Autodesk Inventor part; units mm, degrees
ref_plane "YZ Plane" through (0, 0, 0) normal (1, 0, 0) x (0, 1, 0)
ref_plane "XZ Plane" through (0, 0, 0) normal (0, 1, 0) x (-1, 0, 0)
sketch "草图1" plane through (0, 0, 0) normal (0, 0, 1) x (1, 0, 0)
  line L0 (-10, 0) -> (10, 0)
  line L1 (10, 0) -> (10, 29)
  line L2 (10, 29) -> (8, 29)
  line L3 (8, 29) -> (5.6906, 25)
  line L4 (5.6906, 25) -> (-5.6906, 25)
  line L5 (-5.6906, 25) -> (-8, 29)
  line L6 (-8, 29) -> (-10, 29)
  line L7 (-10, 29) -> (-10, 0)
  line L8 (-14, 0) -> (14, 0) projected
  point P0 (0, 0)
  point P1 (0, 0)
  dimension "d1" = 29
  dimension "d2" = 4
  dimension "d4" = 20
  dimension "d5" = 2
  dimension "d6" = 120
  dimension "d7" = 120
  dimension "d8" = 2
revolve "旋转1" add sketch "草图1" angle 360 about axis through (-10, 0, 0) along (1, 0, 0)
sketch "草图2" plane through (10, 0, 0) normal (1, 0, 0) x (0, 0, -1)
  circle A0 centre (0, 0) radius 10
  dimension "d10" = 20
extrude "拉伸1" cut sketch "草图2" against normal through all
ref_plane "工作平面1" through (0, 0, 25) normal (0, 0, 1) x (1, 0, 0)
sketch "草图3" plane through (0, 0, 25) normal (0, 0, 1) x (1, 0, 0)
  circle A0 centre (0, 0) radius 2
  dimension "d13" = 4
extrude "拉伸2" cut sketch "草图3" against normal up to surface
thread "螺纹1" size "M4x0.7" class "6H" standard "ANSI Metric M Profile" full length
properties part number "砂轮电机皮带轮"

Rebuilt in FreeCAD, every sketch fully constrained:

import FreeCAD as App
import Part
import Sketcher
Q = App.Units.Quantity


def add_polygon(sketch, points):
    """Adds a closed chain of lines whose ends are joined by coincident constraints."""
    first, n = sketch.GeometryCount, len(points)
    for a, b in zip(points, points[1:] + points[:1]):
        sketch.addGeometry(Part.LineSegment(App.Vector(*a, 0), App.Vector(*b, 0)), False)
    for i in range(n):
        sketch.addConstraint(Sketcher.Constraint("Coincident", first + i, 2, first + (i + 1) % n, 1))

doc = App.newDocument("Part")
body = doc.addObject("PartDesign::Body", "Body")

# Sketch on XY plane
sketch1 = body.newObject("Sketcher::SketchObject", "Sketch")
sketch1.AttachmentSupport = (doc.getObject("XY_Plane"), [""])
sketch1.MapMode = "FlatFace"
add_polygon(sketch1, [(-10, 29), (-10, 0), (10, 0), (10, 29), (8, 29), (5.6906, 25), (-5.6906, 25), (-8, 29)])  # lines 0-7
sketch1.addConstraint(Sketcher.Constraint("Vertical", 0))
sketch1.addConstraint(Sketcher.Constraint("Horizontal", 1))
sketch1.addConstraint(Sketcher.Constraint("Vertical", 2))
sketch1.addConstraint(Sketcher.Constraint("Horizontal", 3))
sketch1.addConstraint(Sketcher.Constraint("Horizontal", 5))
sketch1.addConstraint(Sketcher.Constraint("Horizontal", 7))
sketch1.addConstraint(Sketcher.Constraint("Symmetric", 0, 2, 1, 2, -1, 1))
sketch1.addConstraint(Sketcher.Constraint("Symmetric", 3, 2, 6, 2, -2))
sketch1.addConstraint(Sketcher.Constraint("Equal", 4, 6))
sketch1.addConstraint(Sketcher.Constraint("DistanceX", 1, 1, 1, 2, Q("20 mm")))
sketch1.addConstraint(Sketcher.Constraint("DistanceX", 3, 2, 3, 1, Q("2 mm")))
sketch1.addConstraint(Sketcher.Constraint("DistanceY", 0, 2, 0, 1, Q("29 mm")))
sketch1.addConstraint(Sketcher.Constraint("Angle", 4, Q("-120 deg")))
sketch1.addConstraint(Sketcher.Constraint("DistanceY", 4, 2, 3, 2, Q("4 mm")))
revolution = body.newObject("PartDesign::Revolution", "Revolution")
revolution.Profile = sketch1
revolution.ReferenceAxis = (sketch1, ["H_Axis"])
revolution.Angle = 360

# Sketch on YZ plane
sketch2 = body.newObject("Sketcher::SketchObject", "Sketch001")
sketch2.AttachmentSupport = (doc.getObject("YZ_Plane"), [""])
sketch2.MapMode = "FlatFace"
sketch2.AttachmentOffset = App.Placement(App.Vector(0, 0, 10), App.Rotation())
sketch2.addGeometry(Part.Circle(App.Vector(0, 0, 0), App.Vector(0, 0, 1), 10), False)
sketch2.addConstraint(Sketcher.Constraint("Coincident", 0, 3, -1, 1))
sketch2.addConstraint(Sketcher.Constraint("Diameter", 0, Q("20 mm")))
pocket1 = body.newObject("PartDesign::Pocket", "Pocket")
pocket1.Profile = sketch2
pocket1.Type = "ThroughAll"

# Sketch on XY plane
sketch3 = body.newObject("Sketcher::SketchObject", "Sketch002")
sketch3.AttachmentSupport = (doc.getObject("XY_Plane"), [""])
sketch3.MapMode = "FlatFace"
sketch3.AttachmentOffset = App.Placement(App.Vector(0, 0, 25), App.Rotation())
sketch3.addGeometry(Part.Circle(App.Vector(0, 0, 0), App.Vector(0, 0, 1), 2), False)
sketch3.addConstraint(Sketcher.Constraint("Coincident", 0, 3, -1, 1))
sketch3.addConstraint(Sketcher.Constraint("Diameter", 0, Q("4 mm")))
pocket2 = body.newObject("PartDesign::Pocket", "Pocket001")
pocket2.Profile = sketch3
pocket2.Type = "UpToFirst"

doc.recompute()
